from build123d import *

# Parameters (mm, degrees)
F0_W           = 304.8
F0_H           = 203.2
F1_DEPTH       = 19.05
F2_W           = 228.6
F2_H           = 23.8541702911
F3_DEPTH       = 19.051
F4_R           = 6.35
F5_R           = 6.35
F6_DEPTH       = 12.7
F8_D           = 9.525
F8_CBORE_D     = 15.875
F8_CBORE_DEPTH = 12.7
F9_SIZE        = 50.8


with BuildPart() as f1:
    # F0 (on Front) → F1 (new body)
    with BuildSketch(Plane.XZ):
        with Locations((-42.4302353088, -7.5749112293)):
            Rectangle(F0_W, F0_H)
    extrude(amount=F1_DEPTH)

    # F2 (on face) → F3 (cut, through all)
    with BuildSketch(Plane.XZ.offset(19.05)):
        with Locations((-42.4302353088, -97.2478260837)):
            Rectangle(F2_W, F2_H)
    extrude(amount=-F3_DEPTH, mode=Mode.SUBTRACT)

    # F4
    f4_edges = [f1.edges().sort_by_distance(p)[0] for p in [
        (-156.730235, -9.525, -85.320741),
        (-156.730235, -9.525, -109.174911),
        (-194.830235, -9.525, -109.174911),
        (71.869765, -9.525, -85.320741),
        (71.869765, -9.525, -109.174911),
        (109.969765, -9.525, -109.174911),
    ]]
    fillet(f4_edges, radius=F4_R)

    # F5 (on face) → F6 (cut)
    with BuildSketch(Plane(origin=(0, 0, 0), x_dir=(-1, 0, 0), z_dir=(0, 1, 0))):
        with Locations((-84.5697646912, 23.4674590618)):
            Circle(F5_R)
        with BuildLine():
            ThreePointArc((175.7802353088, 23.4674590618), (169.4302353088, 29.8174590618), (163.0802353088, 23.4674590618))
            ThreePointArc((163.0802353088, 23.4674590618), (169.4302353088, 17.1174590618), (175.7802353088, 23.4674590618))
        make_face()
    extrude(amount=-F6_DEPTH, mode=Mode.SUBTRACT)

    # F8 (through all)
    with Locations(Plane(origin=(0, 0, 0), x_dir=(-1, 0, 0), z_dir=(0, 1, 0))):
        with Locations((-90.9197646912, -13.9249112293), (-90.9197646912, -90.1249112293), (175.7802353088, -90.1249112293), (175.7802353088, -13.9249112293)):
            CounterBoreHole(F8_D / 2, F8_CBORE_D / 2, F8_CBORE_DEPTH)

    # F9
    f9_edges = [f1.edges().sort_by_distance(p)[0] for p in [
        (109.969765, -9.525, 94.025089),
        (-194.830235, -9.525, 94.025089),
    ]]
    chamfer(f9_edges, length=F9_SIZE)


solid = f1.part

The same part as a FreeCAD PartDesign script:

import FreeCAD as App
import Part
import Sketcher
from FreeCAD import Vector
Q = App.Units.Quantity


def edges_at(feature, points):
    """Names of the edges that pass closest to the given points."""
    edges = feature.Shape.Edges
    near = lambda p: min(range(len(edges)), key=lambda i: edges[i].distToShape(Part.Vertex(*p))[0])
    return sorted({f"Edge{near(p) + 1}" for p in points})


def add_polygon(sketch, points):
    """Adds a closed chain of lines whose ends are joined by coincident constraints."""
    first, n = sketch.GeometryCount, len(points)
    for a, b in zip(points, points[1:] + points[:1]):
        sketch.addGeometry(Part.LineSegment(App.Vector(*a, 0), App.Vector(*b, 0)), False)
    for i in range(n):
        sketch.addConstraint(Sketcher.Constraint("Coincident", first + i, 2, first + (i + 1) % n, 1))

doc = App.newDocument("Part")
params = doc.addObject("Spreadsheet::Sheet", "Params")
for row, (alias, value) in enumerate([
    ("sketch1_width", "12 in"),
    ("sketch1_height", "8 in"),
    ("pad1_length", "0.75 in"),
    ("sketch2_width", "9 in"),
    ("fillet_radius", "0.25 in"),
    ("sketch3_diameter", "0.5 in"),
    ("pocket2_length", "0.5 in"),
    ("sketch4_diameter", "0.375 in"),
    ("hole_diameter", "0.375 in"),
    ("hole_cbore_diameter", "0.625 in"),
    ("hole_cbore_depth", "0.5 in"),
    ("chamfer_size", "2 in"),
], start=1):
    params.set(f"A{row}", alias)
    params.set(f"B{row}", "=" + value)
    params.setAlias(f"B{row}", alias)

body = doc.addObject("PartDesign::Body", "Body")

# Sketch on XZ plane
sketch1 = body.newObject("Sketcher::SketchObject", "Sketch")
sketch1.AttachmentSupport = (doc.getObject("XZ_Plane"), [""])
sketch1.MapMode = "FlatFace"
add_polygon(sketch1, [(-195, 94), (-195, -109), (110, -109), (110, 94)])  # lines 0-3
sketch1.addConstraint(Sketcher.Constraint("Vertical", 0))
sketch1.addConstraint(Sketcher.Constraint("Horizontal", 1))
sketch1.addConstraint(Sketcher.Constraint("Vertical", 2))
sketch1.addConstraint(Sketcher.Constraint("Horizontal", 3))
sketch1.addConstraint(Sketcher.Constraint("DistanceX", 1, 1, 1, 2, Q("12 in")))
sketch1.addConstraint(Sketcher.Constraint("DistanceY", 0, 2, 0, 1, Q("8 in")))
sketch1.addConstraint(Sketcher.Constraint("DistanceY", 0, 2, -1, 1, 109.174911))
sketch1.addConstraint(Sketcher.Constraint("DistanceX", 0, 2, -1, 1, 194.830235))
sketch1.setExpression("Constraints[8]", "Params.sketch1_width")
sketch1.setExpression("Constraints[9]", "Params.sketch1_height")
pad1 = body.newObject("PartDesign::Pad", "Pad")
pad1.Profile = sketch1
pad1.setExpression("Length", "Params.pad1_length")

# Sketch on XZ plane
sketch2 = body.newObject("Sketcher::SketchObject", "Sketch001")
sketch2.AttachmentSupport = (doc.getObject("XZ_Plane"), [""])
sketch2.MapMode = "FlatFace"
sketch2.AttachmentOffset = App.Placement(Vector(0, 0, 0.75 * 25.4), App.Rotation())
add_polygon(sketch2, [(-157, -85), (-157, -109), (72, -109), (72, -85)])  # lines 0-3
sketch2.addConstraint(Sketcher.Constraint("Vertical", 0))
sketch2.addConstraint(Sketcher.Constraint("Horizontal", 1))
sketch2.addConstraint(Sketcher.Constraint("Vertical", 2))
sketch2.addConstraint(Sketcher.Constraint("Horizontal", 3))
sketch2.addConstraint(Sketcher.Constraint("DistanceX", 1, 1, 1, 2, Q("9 in")))
sketch2.addConstraint(Sketcher.Constraint("DistanceY", 0, 2, 0, 1, 23.85417))
sketch2.addConstraint(Sketcher.Constraint("DistanceY", 0, 2, -1, 1, 109.174911))
sketch2.addConstraint(Sketcher.Constraint("DistanceX", 0, 2, -1, 1, 156.730235))
sketch2.setExpression("Constraints[8]", "Params.sketch2_width")
pocket1 = body.newObject("PartDesign::Pocket", "Pocket")
pocket1.Profile = sketch2
pocket1.Type = "ThroughAll"
doc.recompute()

fillet = body.newObject("PartDesign::Fillet", "Fillet")
fillet.Base = (pocket1, edges_at(pocket1, [
    (-156.73, -9.525, -85.321),
    (-156.73, -9.525, -109.175),
    (-194.83, -9.525, -109.175),
    (71.87, -9.525, -85.321),
    (71.87, -9.525, -109.175),
    (109.97, -9.525, -109.175),
]))
fillet.setExpression("Radius", "Params.fillet_radius")

# Sketch on XZ plane
sketch3 = body.newObject("Sketcher::SketchObject", "Sketch002")
sketch3.AttachmentSupport = (doc.getObject("XZ_Plane"), [""])
sketch3.MapMode = "FlatFace"
sketch3.addGeometry(Part.Circle(Vector(85, 23, 0), Vector(0, 0, 1), 6), False)
sketch3.addGeometry(Part.Circle(Vector(-169, 23, 0), Vector(0, 0, 1), 6), False)
sketch3.addConstraint(Sketcher.Constraint("Equal", 0, 1))
sketch3.addConstraint(Sketcher.Constraint("Horizontal", 0, 3, 1, 3))
sketch3.addConstraint(Sketcher.Constraint("Diameter", 0, Q("0.5 in")))
sketch3.addConstraint(Sketcher.Constraint("DistanceX", 1, 3, 0, 3, Q("10 in")))
sketch3.addConstraint(Sketcher.Constraint("DistanceY", -1, 1, 0, 3, 23.467459))
sketch3.addConstraint(Sketcher.Constraint("DistanceX", -1, 1, 0, 3, 84.569765))
sketch3.setExpression("Constraints[2]", "Params.sketch3_diameter")
pocket2 = body.newObject("PartDesign::Pocket", "Pocket001")
pocket2.Profile = sketch3
pocket2.setExpression("Length", "Params.pocket2_length")
pocket2.Reversed = True

# Sketch on XZ plane
sketch4 = body.newObject("Sketcher::SketchObject", "Sketch003")
sketch4.AttachmentSupport = (doc.getObject("XZ_Plane"), [""])
sketch4.MapMode = "FlatFace"
sketch4.addGeometry(Part.Circle(Vector(90.9, -13.9, 0), Vector(0, 0, 1), 4.8), False)
sketch4.addGeometry(Part.Circle(Vector(90.9, -90.1, 0), Vector(0, 0, 1), 4.8), False)
sketch4.addGeometry(Part.Circle(Vector(-175.8, -90.1, 0), Vector(0, 0, 1), 4.8), False)
sketch4.addGeometry(Part.Circle(Vector(-175.8, -13.9, 0), Vector(0, 0, 1), 4.8), False)
sketch4.addConstraint(Sketcher.Constraint("Equal", 0, 1))
sketch4.addConstraint(Sketcher.Constraint("Equal", 1, 2))
sketch4.addConstraint(Sketcher.Constraint("Equal", 2, 3))
sketch4.addConstraint(Sketcher.Constraint("Horizontal", 1, 3, 2, 3))
sketch4.addConstraint(Sketcher.Constraint("Horizontal", 0, 3, 3, 3))
sketch4.addConstraint(Sketcher.Constraint("Vertical", 0, 3, 1, 3))
sketch4.addConstraint(Sketcher.Constraint("Vertical", 2, 3, 3, 3))
sketch4.addConstraint(Sketcher.Constraint("Diameter", 0, Q("0.375 in")))
sketch4.addConstraint(Sketcher.Constraint("DistanceY", 1, 3, 0, 3, Q("3 in")))
sketch4.addConstraint(Sketcher.Constraint("DistanceX", 2, 3, 1, 3, Q("10.5 in")))
sketch4.addConstraint(Sketcher.Constraint("DistanceY", 0, 3, -1, 1, 13.924911))
sketch4.addConstraint(Sketcher.Constraint("DistanceX", -1, 1, 0, 3, 90.919765))
sketch4.setExpression("Constraints[7]", "Params.sketch4_diameter")
doc.recompute()
hole = body.newObject("PartDesign::Hole", "Hole")
hole.Profile = sketch4
hole.ThreadType = "None"
hole.setExpression("Diameter", "Params.hole_diameter")
hole.DepthType = "ThroughAll"
hole.HoleCutType = "Counterbore"
hole.setExpression("HoleCutDiameter", "Params.hole_cbore_diameter")
hole.setExpression("HoleCutDepth", "Params.hole_cbore_depth")
hole.Reversed = True
doc.recompute()

chamfer = body.newObject("PartDesign::Chamfer", "Chamfer")
chamfer.Base = (hole, edges_at(hole, [(109.97, -9.525, 94.025), (-194.83, -9.525, 94.025)]))
chamfer.setExpression("Size", "Params.chamfer_size")

doc.recompute()
